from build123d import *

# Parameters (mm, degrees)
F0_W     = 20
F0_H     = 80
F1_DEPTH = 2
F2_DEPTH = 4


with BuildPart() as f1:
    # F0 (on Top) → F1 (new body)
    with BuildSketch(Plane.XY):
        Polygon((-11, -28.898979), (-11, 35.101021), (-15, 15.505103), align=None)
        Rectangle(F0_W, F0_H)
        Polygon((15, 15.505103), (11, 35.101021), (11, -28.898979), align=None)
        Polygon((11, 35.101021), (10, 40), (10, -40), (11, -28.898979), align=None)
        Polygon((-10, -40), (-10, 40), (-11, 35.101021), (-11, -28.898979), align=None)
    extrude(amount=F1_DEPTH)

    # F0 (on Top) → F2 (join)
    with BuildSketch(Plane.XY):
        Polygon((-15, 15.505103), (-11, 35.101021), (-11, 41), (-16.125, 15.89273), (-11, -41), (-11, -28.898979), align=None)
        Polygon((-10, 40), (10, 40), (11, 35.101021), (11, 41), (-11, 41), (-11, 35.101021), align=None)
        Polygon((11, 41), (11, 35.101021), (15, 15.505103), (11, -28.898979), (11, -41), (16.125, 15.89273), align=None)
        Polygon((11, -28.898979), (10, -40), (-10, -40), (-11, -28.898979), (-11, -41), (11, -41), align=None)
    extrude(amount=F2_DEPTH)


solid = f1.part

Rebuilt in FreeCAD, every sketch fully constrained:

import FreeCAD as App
import Part
import Sketcher


def add_polygon(sketch, points):
    """Adds a closed chain of lines whose ends are joined by coincident constraints."""
    first, n = sketch.GeometryCount, len(points)
    for a, b in zip(points, points[1:] + points[:1]):
        sketch.addGeometry(Part.LineSegment(App.Vector(*a, 0), App.Vector(*b, 0)), False)
    for i in range(n):
        sketch.addConstraint(Sketcher.Constraint("Coincident", first + i, 2, first + (i + 1) % n, 1))

doc = App.newDocument("Part")
body = doc.addObject("PartDesign::Body", "Body")

# Sketch on XY plane
sketch1 = body.newObject("Sketcher::SketchObject", "Sketch")
sketch1.AttachmentSupport = (doc.getObject("XY_Plane"), [""])
sketch1.MapMode = "FlatFace"
add_polygon(sketch1, [(-11, 35.1), (-15, 15.5), (-11, -28.9), (-10, -40), (10, -40), (11, -28.9), (15, 15.5), (11, 35.1), (10, 40), (-10, 40)])  # lines 0-9
sketch1.addConstraint([
    Sketcher.Constraint("Horizontal", 3),
    Sketcher.Constraint("Horizontal", 8),
    Sketcher.Constraint("Symmetric", 2, 2, 7, 2, -1, 1),
    Sketcher.Constraint("Symmetric", 1, 2, 4, 2, -2),
    Sketcher.Constraint("Symmetric", 0, 2, 5, 2, -2),
    Sketcher.Constraint("Symmetric", 6, 2, 9, 2, -2),
    Sketcher.Constraint("Parallel", 1, 2),
    Sketcher.Constraint("Parallel", 4, 5),
    Sketcher.Constraint("Parallel", 6, 7),
    Sketcher.Constraint("Parallel", 0, 9),
    Sketcher.Constraint("Vertical", 4, 2, 6, 2),
    Sketcher.Constraint("DistanceX", 3, 1, 3, 2, 20.0),
    Sketcher.Constraint("Distance", 0, 20.0),
    Sketcher.Constraint("Distance", 7, 5.0),
    Sketcher.Constraint("DistanceX", 0, 2, -1, 1, 15.0),
    Sketcher.Constraint("DistanceY", 2, 2, -1, 1, 40.0),
])
pad1 = body.newObject("PartDesign::Pad", "Pad")
pad1.Profile = sketch1
pad1.Length = 2

# Sketch on XY plane
sketch2 = body.newObject("Sketcher::SketchObject", "Sketch001")
sketch2.AttachmentSupport = (doc.getObject("XY_Plane"), [""])
sketch2.MapMode = "FlatFace"
add_polygon(sketch2, [(11, -41), (16.1, 15.9), (11, 41), (-11, 41), (-16.1, 15.9), (-11, -41)])  # lines 0-5
add_polygon(sketch2, [(-15, 15.5), (-11, 35.1), (-10, 40), (10, 40), (11, 35.1), (15, 15.5), (11, -28.9), (10, -40), (-10, -40), (-11, -28.9)])  # lines 6-15
sketch2.addConstraint([
    Sketcher.Constraint("Horizontal", 2),
    Sketcher.Constraint("Horizontal", 5),
    Sketcher.Constraint("Horizontal", 8),
    Sketcher.Constraint("Horizontal", 13),
    Sketcher.Constraint("Symmetric", 1, 2, 4, 2, -1, 1),
    Sketcher.Constraint("Symmetric", 7, 2, 12, 2, -1, 1),
    Sketcher.Constraint("Symmetric", 0, 2, 3, 2, -2),
    Sketcher.Constraint("Symmetric", 6, 2, 9, 2, -2),
    Sketcher.Constraint("Symmetric", 11, 2, 14, 2, -2),
    Sketcher.Constraint("Symmetric", 10, 2, 15, 2, -2),
    Sketcher.Constraint("Parallel", 3, 6),
    Sketcher.Constraint("Parallel", 6, 7),
    Sketcher.Constraint("Parallel", 1, 9),
    Sketcher.Constraint("Parallel", 9, 10),
    Sketcher.Constraint("Parallel", 0, 11),
    Sketcher.Constraint("Parallel", 11, 12),
    Sketcher.Constraint("Parallel", 4, 14),
    Sketcher.Constraint("Parallel", 14, 15),
    Sketcher.Constraint("Vertical", 4, 2, 6, 2),
    Sketcher.Constraint("Vertical", 9, 2, 11, 2),
    Sketcher.Constraint("DistanceX", 2, 2, 2, 1, 22.0),
    Sketcher.Constraint("DistanceX", 8, 1, 8, 2, 20.0),
    Sketcher.Constraint("Distance", 6, 20.0),
    Sketcher.Constraint("Distance", 7, 5.0),
    Sketcher.Constraint("DistanceY", -1, 1, 1, 2, 41.0),
    Sketcher.Constraint("DistanceY", -1, 1, 7, 2, 40.0),
])
pad2 = body.newObject("PartDesign::Pad", "Pad001")
pad2.Profile = sketch2
pad2.Length = 4

doc.recompute()
